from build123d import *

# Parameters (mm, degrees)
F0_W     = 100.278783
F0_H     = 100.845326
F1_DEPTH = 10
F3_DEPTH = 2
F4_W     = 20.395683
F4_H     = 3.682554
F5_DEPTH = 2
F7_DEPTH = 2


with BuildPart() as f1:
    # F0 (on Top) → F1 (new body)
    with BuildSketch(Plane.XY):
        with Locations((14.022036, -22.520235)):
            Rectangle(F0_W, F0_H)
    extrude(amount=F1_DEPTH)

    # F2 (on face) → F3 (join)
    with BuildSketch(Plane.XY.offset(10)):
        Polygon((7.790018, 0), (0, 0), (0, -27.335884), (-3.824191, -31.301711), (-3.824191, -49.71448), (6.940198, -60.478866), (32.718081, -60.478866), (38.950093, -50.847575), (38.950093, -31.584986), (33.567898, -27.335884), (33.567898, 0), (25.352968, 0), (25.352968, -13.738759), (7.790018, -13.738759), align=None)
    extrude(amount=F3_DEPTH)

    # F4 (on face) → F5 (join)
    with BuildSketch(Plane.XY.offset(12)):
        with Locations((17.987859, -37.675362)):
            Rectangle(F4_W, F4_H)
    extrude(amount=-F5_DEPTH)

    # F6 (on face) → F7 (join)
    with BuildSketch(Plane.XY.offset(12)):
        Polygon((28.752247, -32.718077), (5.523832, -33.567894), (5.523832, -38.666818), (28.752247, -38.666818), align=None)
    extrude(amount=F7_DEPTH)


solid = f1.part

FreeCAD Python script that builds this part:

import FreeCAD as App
import Part
import Sketcher
from FreeCAD import Vector
Q = App.Units.Quantity

doc = App.newDocument("Part")
params = doc.addObject("Spreadsheet::Sheet", "Params")
for row, (alias, value) in enumerate([
    ("pad1_length", "10 mm"),
    ("pad2_length", "2 mm"),
    ("pad3_length", "2 mm"),
    ("pad4_length", "2 mm"),
], start=1):
    params.set(f"A{row}", alias)
    params.set(f"B{row}", "=" + value)
    params.setAlias(f"B{row}", alias)

body = doc.addObject("PartDesign::Body", "Body")

sketch1 = body.newObject("Sketcher::SketchObject", "Sketch")
sketch1.AttachmentSupport = (doc.getObject("XY_Plane"), [""])
sketch1.MapMode = "FlatFace"
sketch1.addGeometry([
    Part.LineSegment(Vector(-36, 28, 0), Vector(-36, -73, 0)),
    Part.LineSegment(Vector(-36, -73, 0), Vector(64, -73, 0)),
    Part.LineSegment(Vector(64, -73, 0), Vector(64, 28, 0)),
    Part.LineSegment(Vector(64, 28, 0), Vector(-36, 28, 0)),
], False)
sketch1.addConstraint([
    Sketcher.Constraint("Coincident", 0, 2, 1, 1),
    Sketcher.Constraint("Coincident", 1, 2, 2, 1),
    Sketcher.Constraint("Coincident", 2, 2, 3, 1),
    Sketcher.Constraint("Coincident", 3, 2, 0, 1),
    Sketcher.Constraint("Vertical", 0),
    Sketcher.Constraint("Horizontal", 1),
    Sketcher.Constraint("Vertical", 2),
    Sketcher.Constraint("Horizontal", 3),
    Sketcher.Constraint("DistanceY", 0, 2, -1, 1, Q("72.942898 mm")),
    Sketcher.Constraint("DistanceX", 1, 1, 1, 2, Q("100.278783 mm")),
    Sketcher.Constraint("DistanceY", 0, 2, 0, 1, Q("100.845326 mm")),
    Sketcher.Constraint("DistanceX", 0, 2, -1, 1, Q("36.117356 mm")),
])
pad1 = body.newObject("PartDesign::Pad", "Pad")
pad1.Profile = sketch1
pad1.setExpression("Length", "Params.pad1_length")

sketch2 = body.newObject("Sketcher::SketchObject", "Sketch001")
sketch2.AttachmentSupport = (doc.getObject("XY_Plane"), [""])
sketch2.MapMode = "FlatFace"
sketch2.AttachmentOffset = App.Placement(Vector(0, 0, 10), App.Rotation())
sketch2.addGeometry([
    Part.LineSegment(Vector(8, 0, 0), Vector(0, 0, 0)),
    Part.LineSegment(Vector(0, 0, 0), Vector(0, -27, 0)),
    Part.LineSegment(Vector(0, -27, 0), Vector(-4, -31, 0)),
    Part.LineSegment(Vector(-4, -31, 0), Vector(-4, -50, 0)),
    Part.LineSegment(Vector(-4, -50, 0), Vector(7, -60, 0)),
    Part.LineSegment(Vector(7, -60, 0), Vector(33, -60, 0)),
    Part.LineSegment(Vector(33, -60, 0), Vector(39, -51, 0)),
    Part.LineSegment(Vector(39, -51, 0), Vector(39, -32, 0)),
    Part.LineSegment(Vector(39, -32, 0), Vector(34, -27, 0)),
    Part.LineSegment(Vector(34, -27, 0), Vector(34, 0, 0)),
    Part.LineSegment(Vector(34, 0, 0), Vector(25, 0, 0)),
    Part.LineSegment(Vector(25, 0, 0), Vector(25, -14, 0)),
    Part.LineSegment(Vector(25, -14, 0), Vector(8, -14, 0)),
    Part.LineSegment(Vector(8, -14, 0), Vector(8, 0, 0)),
], False)
sketch2.addConstraint([
    Sketcher.Constraint("Coincident", 0, 2, 1, 1),
    Sketcher.Constraint("Coincident", 1, 2, 2, 1),
    Sketcher.Constraint("Coincident", 2, 2, 3, 1),
    Sketcher.Constraint("Coincident", 3, 2, 4, 1),
    Sketcher.Constraint("Coincident", 4, 2, 5, 1),
    Sketcher.Constraint("Coincident", 5, 2, 6, 1),
    Sketcher.Constraint("Coincident", 6, 2, 7, 1),
    Sketcher.Constraint("Coincident", 7, 2, 8, 1),
    Sketcher.Constraint("Coincident", 8, 2, 9, 1),
    Sketcher.Constraint("Coincident", 9, 2, 10, 1),
    Sketcher.Constraint("Coincident", 10, 2, 11, 1),
    Sketcher.Constraint("Coincident", 11, 2, 12, 1),
    Sketcher.Constraint("Coincident", 12, 2, 13, 1),
    Sketcher.Constraint("Coincident", 13, 2, 0, 1),
    Sketcher.Constraint("Horizontal", 0),
    Sketcher.Constraint("Vertical", 1),
    Sketcher.Constraint("Vertical", 3),
    Sketcher.Constraint("Horizontal", 5),
    Sketcher.Constraint("Vertical", 7),
    Sketcher.Constraint("Vertical", 9),
    Sketcher.Constraint("Horizontal", 10),
    Sketcher.Constraint("Vertical", 11),
    Sketcher.Constraint("Horizontal", 12),
    Sketcher.Constraint("Vertical", 13),
    Sketcher.Constraint("Coincident", 0, 2, -1, 1),
    Sketcher.Constraint("PointOnObject", 9, 2, -1),
    Sketcher.Constraint("Horizontal", 1, 2, 8, 2),
    Sketcher.Constraint("Angle", 4, Q("-44.999992 deg")),
    Sketcher.Constraint("DistanceX", 10, 2, 10, 1, Q("8.21493 mm")),
    Sketcher.Constraint("DistanceX", 12, 2, 12, 1, Q("17.56295 mm")),
    Sketcher.Constraint("DistanceY", 3, 2, 3, 1, Q("18.412769 mm")),
    Sketcher.Constraint("DistanceY", 7, 1, 7, 2, Q("19.262589 mm")),
    Sketcher.Constraint("DistanceY", 11, 2, 11, 1, Q("13.738759 mm")),
    Sketcher.Constraint("DistanceX", 0, 2, 0, 1, Q("7.790018 mm")),
    Sketcher.Constraint("DistanceX", 5, 1, 5, 2, Q("25.777883 mm")),
    Sketcher.Constraint("DistanceY", 1, 2, 1, 1, Q("27.335884 mm")),
    Sketcher.Constraint("DistanceX", 2, 2, -1, 1, Q("3.824191 mm")),
    Sketcher.Constraint("DistanceY", 2, 2, -1, 1, Q("31.301711 mm")),
    Sketcher.Constraint("DistanceX", -1, 1, 5, 2, Q("32.718081 mm")),
    Sketcher.Constraint("DistanceY", 5, 2, 6, 2, Q("9.631291 mm")),
    Sketcher.Constraint("Distance", 6, Q("11.471693 mm")),
])
pad2 = body.newObject("PartDesign::Pad", "Pad001")
pad2.Profile = sketch2
pad2.setExpression("Length", "Params.pad2_length")

sketch3 = body.newObject("Sketcher::SketchObject", "Sketch002")
sketch3.AttachmentSupport = (doc.getObject("XY_Plane"), [""])
sketch3.MapMode = "FlatFace"
sketch3.AttachmentOffset = App.Placement(Vector(0, 0, 12), App.Rotation())
sketch3.addGeometry([
    Part.LineSegment(Vector(7.8, -35.8, 0), Vector(7.8, -39.5, 0)),
    Part.LineSegment(Vector(7.8, -39.5, 0), Vector(28.2, -39.5, 0)),
    Part.LineSegment(Vector(28.2, -39.5, 0), Vector(28.2, -35.8, 0)),
    Part.LineSegment(Vector(28.2, -35.8, 0), Vector(7.8, -35.8, 0)),
], False)
sketch3.addConstraint([
    Sketcher.Constraint("Coincident", 0, 2, 1, 1),
    Sketcher.Constraint("Coincident", 1, 2, 2, 1),
    Sketcher.Constraint("Coincident", 2, 2, 3, 1),
    Sketcher.Constraint("Coincident", 3, 2, 0, 1),
    Sketcher.Constraint("Vertical", 0),
    Sketcher.Constraint("Horizontal", 1),
    Sketcher.Constraint("Vertical", 2),
    Sketcher.Constraint("Horizontal", 3),
    Sketcher.Constraint("DistanceX", -1, 1, 1, 2, Q("28.1857 mm")),
    Sketcher.Constraint("DistanceX", 1, 1, 1, 2, Q("20.395683 mm")),
    Sketcher.Constraint("DistanceY", 0, 2, 0, 1, Q("3.682554 mm")),
    Sketcher.Constraint("DistanceY", 0, 2, -1, 1, Q("39.516639 mm")),
])
pad3 = body.newObject("PartDesign::Pad", "Pad002")
pad3.Profile = sketch3
pad3.setExpression("Length", "Params.pad3_length")
pad3.Reversed = True

sketch4 = body.newObject("Sketcher::SketchObject", "Sketch003")
sketch4.AttachmentSupport = (doc.getObject("XY_Plane"), [""])
sketch4.MapMode = "FlatFace"
sketch4.AttachmentOffset = App.Placement(Vector(0, 0, 12), App.Rotation())
sketch4.addGeometry([
    Part.LineSegment(Vector(29, -33, 0), Vector(6, -34, 0)),
    Part.LineSegment(Vector(6, -34, 0), Vector(6, -39, 0)),
    Part.LineSegment(Vector(6, -39, 0), Vector(29, -39, 0)),
    Part.LineSegment(Vector(29, -39, 0), Vector(29, -33, 0)),
], False)
sketch4.addConstraint([
    Sketcher.Constraint("Coincident", 0, 2, 1, 1),
    Sketcher.Constraint("Coincident", 1, 2, 2, 1),
    Sketcher.Constraint("Coincident", 2, 2, 3, 1),
    Sketcher.Constraint("Coincident", 3, 2, 0, 1),
    Sketcher.Constraint("Vertical", 1),
    Sketcher.Constraint("Horizontal", 2),
    Sketcher.Constraint("Vertical", 3),
    Sketcher.Constraint("DistanceY", 3, 1, 3, 2, Q("5.948741 mm")),
    Sketcher.Constraint("DistanceX", 2, 1, 2, 2, Q("23.228415 mm")),
    Sketcher.Constraint("DistanceY", 1, 2, 1, 1, Q("5.098924 mm")),
    Sketcher.Constraint("DistanceX", -1, 1, 0, 2, Q("5.523832 mm")),
    Sketcher.Constraint("DistanceY", 0, 2, -1, 1, Q("33.567894 mm")),
])
pad4 = body.newObject("PartDesign::Pad", "Pad003")
pad4.Profile = sketch4
pad4.setExpression("Length", "Params.pad4_length")

doc.recompute()
